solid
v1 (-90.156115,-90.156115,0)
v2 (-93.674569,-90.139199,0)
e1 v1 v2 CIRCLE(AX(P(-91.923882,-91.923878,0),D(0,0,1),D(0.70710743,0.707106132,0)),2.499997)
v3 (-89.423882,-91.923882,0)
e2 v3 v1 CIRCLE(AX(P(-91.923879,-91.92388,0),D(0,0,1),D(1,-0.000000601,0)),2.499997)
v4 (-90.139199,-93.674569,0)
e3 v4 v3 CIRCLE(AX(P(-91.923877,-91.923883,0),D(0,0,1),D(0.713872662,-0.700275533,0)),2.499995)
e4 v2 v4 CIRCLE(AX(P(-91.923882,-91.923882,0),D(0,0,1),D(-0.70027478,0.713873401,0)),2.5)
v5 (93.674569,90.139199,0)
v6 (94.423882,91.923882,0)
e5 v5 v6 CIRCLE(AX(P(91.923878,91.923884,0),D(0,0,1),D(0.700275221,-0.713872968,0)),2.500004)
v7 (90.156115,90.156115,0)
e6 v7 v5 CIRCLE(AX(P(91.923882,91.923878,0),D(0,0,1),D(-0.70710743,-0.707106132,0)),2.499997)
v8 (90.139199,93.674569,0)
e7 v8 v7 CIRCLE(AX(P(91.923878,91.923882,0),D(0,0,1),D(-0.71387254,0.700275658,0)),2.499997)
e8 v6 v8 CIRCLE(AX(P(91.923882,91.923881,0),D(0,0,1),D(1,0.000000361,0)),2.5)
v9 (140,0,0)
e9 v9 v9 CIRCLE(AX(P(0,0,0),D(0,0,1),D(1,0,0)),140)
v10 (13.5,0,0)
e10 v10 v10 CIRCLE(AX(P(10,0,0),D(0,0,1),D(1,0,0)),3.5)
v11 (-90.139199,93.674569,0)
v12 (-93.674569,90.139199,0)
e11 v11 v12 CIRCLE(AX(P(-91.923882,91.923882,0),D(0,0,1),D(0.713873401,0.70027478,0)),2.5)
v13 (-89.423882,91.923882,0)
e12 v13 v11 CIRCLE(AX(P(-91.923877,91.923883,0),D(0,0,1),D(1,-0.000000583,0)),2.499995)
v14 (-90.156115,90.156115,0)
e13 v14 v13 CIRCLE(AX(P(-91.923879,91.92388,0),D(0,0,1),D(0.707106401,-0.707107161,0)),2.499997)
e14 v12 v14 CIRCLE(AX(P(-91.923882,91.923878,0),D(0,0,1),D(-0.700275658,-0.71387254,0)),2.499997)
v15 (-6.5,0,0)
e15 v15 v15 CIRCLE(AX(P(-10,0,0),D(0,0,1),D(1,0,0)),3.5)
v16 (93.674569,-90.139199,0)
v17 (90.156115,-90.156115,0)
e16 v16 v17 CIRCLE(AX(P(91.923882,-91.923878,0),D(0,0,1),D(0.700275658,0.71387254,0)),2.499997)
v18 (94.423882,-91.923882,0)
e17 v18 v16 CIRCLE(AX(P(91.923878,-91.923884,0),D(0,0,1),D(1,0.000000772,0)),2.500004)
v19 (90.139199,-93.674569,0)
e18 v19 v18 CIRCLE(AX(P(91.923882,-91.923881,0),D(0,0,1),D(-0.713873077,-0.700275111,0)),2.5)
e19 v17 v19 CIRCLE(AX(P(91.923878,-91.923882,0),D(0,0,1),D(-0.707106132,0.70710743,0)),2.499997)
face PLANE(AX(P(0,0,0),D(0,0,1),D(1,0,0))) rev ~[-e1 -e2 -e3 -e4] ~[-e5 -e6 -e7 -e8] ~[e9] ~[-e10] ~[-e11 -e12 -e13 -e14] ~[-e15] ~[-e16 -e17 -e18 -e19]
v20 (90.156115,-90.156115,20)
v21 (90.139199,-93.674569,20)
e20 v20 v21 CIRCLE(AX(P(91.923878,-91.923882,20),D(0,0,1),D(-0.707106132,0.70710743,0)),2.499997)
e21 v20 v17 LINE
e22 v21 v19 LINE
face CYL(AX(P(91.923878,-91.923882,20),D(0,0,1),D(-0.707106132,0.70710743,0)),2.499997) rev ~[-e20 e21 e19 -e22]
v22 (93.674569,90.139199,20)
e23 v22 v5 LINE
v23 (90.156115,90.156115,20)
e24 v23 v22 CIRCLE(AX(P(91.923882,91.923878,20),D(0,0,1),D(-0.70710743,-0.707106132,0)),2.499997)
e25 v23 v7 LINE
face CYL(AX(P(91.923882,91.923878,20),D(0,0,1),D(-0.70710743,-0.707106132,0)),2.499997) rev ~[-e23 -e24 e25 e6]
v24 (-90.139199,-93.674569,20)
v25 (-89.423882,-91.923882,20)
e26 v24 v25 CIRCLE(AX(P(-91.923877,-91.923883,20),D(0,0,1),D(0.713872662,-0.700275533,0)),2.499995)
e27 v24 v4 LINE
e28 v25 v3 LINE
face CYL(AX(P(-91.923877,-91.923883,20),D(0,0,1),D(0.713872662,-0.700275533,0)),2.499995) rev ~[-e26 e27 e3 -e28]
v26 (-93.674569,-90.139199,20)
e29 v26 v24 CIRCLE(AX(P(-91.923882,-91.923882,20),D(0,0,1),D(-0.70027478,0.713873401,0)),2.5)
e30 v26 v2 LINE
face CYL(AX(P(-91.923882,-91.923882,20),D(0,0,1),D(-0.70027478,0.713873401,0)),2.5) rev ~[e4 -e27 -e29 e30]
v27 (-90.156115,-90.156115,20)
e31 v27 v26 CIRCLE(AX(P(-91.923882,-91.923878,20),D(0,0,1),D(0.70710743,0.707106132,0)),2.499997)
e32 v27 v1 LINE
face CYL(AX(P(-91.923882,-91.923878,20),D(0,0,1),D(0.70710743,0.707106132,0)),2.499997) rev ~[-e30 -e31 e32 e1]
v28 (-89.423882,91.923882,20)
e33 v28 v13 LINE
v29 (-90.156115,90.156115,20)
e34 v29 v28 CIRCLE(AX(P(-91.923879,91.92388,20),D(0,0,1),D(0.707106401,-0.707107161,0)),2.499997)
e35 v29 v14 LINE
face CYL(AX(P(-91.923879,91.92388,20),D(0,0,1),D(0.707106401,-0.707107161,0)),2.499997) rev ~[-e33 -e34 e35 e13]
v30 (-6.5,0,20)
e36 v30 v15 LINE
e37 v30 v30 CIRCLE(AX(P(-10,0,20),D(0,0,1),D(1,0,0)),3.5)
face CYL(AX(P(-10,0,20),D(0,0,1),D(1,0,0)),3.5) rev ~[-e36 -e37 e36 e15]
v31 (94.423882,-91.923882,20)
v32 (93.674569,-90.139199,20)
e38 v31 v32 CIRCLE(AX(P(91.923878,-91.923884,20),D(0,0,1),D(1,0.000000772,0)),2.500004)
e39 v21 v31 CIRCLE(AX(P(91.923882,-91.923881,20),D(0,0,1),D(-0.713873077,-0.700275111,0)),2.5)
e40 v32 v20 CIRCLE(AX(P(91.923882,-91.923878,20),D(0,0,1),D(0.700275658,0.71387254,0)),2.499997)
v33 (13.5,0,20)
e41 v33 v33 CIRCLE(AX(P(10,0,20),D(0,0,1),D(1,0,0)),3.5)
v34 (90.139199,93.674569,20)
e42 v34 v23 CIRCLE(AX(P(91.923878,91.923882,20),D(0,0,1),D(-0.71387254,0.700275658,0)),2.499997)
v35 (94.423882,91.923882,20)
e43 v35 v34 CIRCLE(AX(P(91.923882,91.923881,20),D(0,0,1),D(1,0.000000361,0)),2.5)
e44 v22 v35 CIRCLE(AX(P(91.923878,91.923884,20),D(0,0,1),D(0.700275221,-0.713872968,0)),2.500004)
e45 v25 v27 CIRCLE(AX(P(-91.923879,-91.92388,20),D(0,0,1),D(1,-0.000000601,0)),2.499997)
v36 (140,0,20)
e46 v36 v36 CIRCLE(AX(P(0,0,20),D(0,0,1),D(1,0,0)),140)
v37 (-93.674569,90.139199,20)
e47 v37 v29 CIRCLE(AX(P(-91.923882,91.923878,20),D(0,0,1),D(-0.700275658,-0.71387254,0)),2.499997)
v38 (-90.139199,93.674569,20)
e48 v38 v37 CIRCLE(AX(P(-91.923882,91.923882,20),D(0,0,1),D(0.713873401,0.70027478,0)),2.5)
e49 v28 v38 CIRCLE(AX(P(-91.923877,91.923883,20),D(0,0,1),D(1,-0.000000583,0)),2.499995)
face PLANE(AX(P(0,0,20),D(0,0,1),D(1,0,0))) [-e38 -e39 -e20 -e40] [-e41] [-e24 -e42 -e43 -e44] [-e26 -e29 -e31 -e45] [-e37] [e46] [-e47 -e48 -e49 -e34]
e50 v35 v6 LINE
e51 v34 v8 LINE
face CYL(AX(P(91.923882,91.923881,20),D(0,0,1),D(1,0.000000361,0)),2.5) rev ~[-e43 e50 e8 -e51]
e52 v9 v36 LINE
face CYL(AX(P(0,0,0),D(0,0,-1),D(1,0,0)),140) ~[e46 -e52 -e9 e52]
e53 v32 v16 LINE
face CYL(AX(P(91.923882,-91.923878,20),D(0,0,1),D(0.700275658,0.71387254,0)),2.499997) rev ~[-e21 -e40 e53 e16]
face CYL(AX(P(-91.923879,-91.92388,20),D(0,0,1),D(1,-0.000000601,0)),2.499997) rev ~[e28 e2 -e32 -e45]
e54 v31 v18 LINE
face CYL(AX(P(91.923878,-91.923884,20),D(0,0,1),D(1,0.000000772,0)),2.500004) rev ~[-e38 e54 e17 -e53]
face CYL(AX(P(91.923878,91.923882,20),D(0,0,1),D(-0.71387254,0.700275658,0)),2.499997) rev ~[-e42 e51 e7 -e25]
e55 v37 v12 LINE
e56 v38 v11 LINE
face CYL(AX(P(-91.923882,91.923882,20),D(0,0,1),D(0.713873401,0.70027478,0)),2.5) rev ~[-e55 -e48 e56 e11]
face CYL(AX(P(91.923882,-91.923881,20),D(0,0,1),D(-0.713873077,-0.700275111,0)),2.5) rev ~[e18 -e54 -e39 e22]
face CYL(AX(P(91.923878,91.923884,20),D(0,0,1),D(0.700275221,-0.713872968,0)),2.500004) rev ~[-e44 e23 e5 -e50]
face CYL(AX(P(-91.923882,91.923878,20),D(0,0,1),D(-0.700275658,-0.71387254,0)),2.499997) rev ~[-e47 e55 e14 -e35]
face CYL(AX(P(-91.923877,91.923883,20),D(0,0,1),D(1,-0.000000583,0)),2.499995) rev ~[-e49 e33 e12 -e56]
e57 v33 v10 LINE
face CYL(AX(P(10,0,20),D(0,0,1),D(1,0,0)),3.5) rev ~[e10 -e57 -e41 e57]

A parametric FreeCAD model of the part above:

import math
import FreeCAD as App
import Part
import Sketcher
Q = App.Units.Quantity

doc = App.newDocument("Part")
body = doc.addObject("PartDesign::Body", "Body")

# Sketch on XY plane
sketch1 = doc.addObject("Sketcher::SketchObject", "Sketch")
body.addObject(sketch1)
sketch1.AttachmentSupport = (doc.XY_Plane, [""])
sketch1.MapMode = "FlatFace"
sketch1.addGeometry(Part.Circle(App.Vector(0, 0, 0), App.Vector(0, 0, 1), 140), False)
sketch1.addConstraint([
    Sketcher.Constraint("Coincident", 0, 3, -1, 1),
    Sketcher.Constraint("Diameter", 0, Q("280 mm")),
])
pad1 = doc.addObject("PartDesign::Pad", "Pad")
body.addObject(pad1)
pad1.Profile = sketch1
pad1.Length = 20

# Sketch on XY plane
sketch2 = doc.addObject("Sketcher::SketchObject", "Sketch001")
body.addObject(sketch2)
sketch2.AttachmentSupport = (doc.XY_Plane, [""])
sketch2.MapMode = "FlatFace"
sketch2.AttachmentOffset = App.Placement(App.Vector(0, 0, 20), App.Rotation())
sketch2.addGeometry([
    Part.Circle(App.Vector(-10, 0, 0), App.Vector(0, 0, 1), 3.5),
    Part.Circle(App.Vector(10, 0, 0), App.Vector(0, 0, 1), 3.5),
], False)
sketch2.addConstraint([
    Sketcher.Constraint("Equal", 0, 1),
    Sketcher.Constraint("Symmetric", 0, 3, 1, 3, -1, 1),
    Sketcher.Constraint("PointOnObject", 0, 3, -1),
    Sketcher.Constraint("Diameter", 0, Q("7 mm")),
    Sketcher.Constraint("DistanceX", 0, 3, -1, 1, Q("10 mm")),
])
pocket1 = doc.addObject("PartDesign::Pocket", "Pocket")
body.addObject(pocket1)
pocket1.Profile = sketch2
pocket1.Type = "ThroughAll"

# Sketch on XY plane
sketch3 = doc.addObject("Sketcher::SketchObject", "Sketch002")
body.addObject(sketch3)
sketch3.AttachmentSupport = (doc.XY_Plane, [""])
sketch3.MapMode = "FlatFace"
sketch3.AttachmentOffset = App.Placement(App.Vector(0, 0, 20), App.Rotation())
sketch3.addGeometry([
    Part.ArcOfCircle(Part.Circle(App.Vector(-91.9, 91.9, 0), App.Vector(0, 0, 1), 2.5), math.radians(44), math.radians(226)),  # 0
    Part.ArcOfCircle(Part.Circle(App.Vector(-91.9, 91.9, 0), App.Vector(0, 0, 1), 2.5), math.radians(-134), math.radians(-45)),  # 1
    Part.ArcOfCircle(Part.Circle(App.Vector(-91.9, 91.9, 0), App.Vector(0, 0, 1), 2.5), math.radians(-45), math.radians(0)),  # 2
    Part.ArcOfCircle(Part.Circle(App.Vector(-91.9, 91.9, 0), App.Vector(0, 0, 1), 2.5), math.radians(0), math.radians(44)),  # 3
    Part.ArcOfCircle(Part.Circle(App.Vector(91.9, 91.9, 0), App.Vector(0, 0, 1), 2.5), math.radians(-46), math.radians(0)),  # 4
    Part.ArcOfCircle(Part.Circle(App.Vector(91.9, 91.9, 0), App.Vector(0, 0, 1), 2.5), math.radians(0), math.radians(136)),  # 5
    Part.ArcOfCircle(Part.Circle(App.Vector(91.9, 91.9, 0), App.Vector(0, 0, 1), 2.5), math.radians(136), math.radians(225)),  # 6
    Part.ArcOfCircle(Part.Circle(App.Vector(91.9, 91.9, 0), App.Vector(0, 0, 1), 2.5), math.radians(-135), math.radians(-46)),  # 7
    Part.ArcOfCircle(Part.Circle(App.Vector(-91.9, -91.9, 0), App.Vector(0, 0, 1), 2.5), math.radians(134), math.radians(316)),  # 8
    Part.ArcOfCircle(Part.Circle(App.Vector(-91.9, -91.9, 0), App.Vector(0, 0, 1), 2.5), math.radians(-44), math.radians(0)),  # 9
    Part.ArcOfCircle(Part.Circle(App.Vector(-91.9, -91.9, 0), App.Vector(0, 0, 1), 2.5), math.radians(0), math.radians(45)),  # 10
    Part.ArcOfCircle(Part.Circle(App.Vector(-91.9, -91.9, 0), App.Vector(0, 0, 1), 2.5), math.radians(45), math.radians(134)),  # 11
    Part.ArcOfCircle(Part.Circle(App.Vector(91.9, -91.9, 0), App.Vector(0, 0, 1), 2.5), math.radians(0), math.radians(46)),  # 12
    Part.ArcOfCircle(Part.Circle(App.Vector(91.9, -91.9, 0), App.Vector(0, 0, 1), 2.5), math.radians(46), math.radians(135)),  # 13
    Part.ArcOfCircle(Part.Circle(App.Vector(91.9, -91.9, 0), App.Vector(0, 0, 1), 2.5), math.radians(135), math.radians(224)),  # 14
    Part.ArcOfCircle(Part.Circle(App.Vector(91.9, -91.9, 0), App.Vector(0, 0, 1), 2.5), math.radians(-136), math.radians(0)),  # 15
], False)
sketch3.addConstraint([
    Sketcher.Constraint("Tangent", 0, 2, 1, 1),
    Sketcher.Constraint("Tangent", 1, 2, 2, 1),
    Sketcher.Constraint("Tangent", 2, 2, 3, 1),
    Sketcher.Constraint("Tangent", 3, 2, 0, 1),
    Sketcher.Constraint("Tangent", 4, 2, 5, 1),
    Sketcher.Constraint("Tangent", 5, 2, 6, 1),
    Sketcher.Constraint("Tangent", 6, 2, 7, 1),
    Sketcher.Constraint("Tangent", 7, 2, 4, 1),
    Sketcher.Constraint("Tangent", 8, 2, 9, 1),
    Sketcher.Constraint("Tangent", 9, 2, 10, 1),
    Sketcher.Constraint("Tangent", 10, 2, 11, 1),
    Sketcher.Constraint("Tangent", 11, 2, 8, 1),
    Sketcher.Constraint("Tangent", 12, 2, 13, 1),
    Sketcher.Constraint("Tangent", 13, 2, 14, 1),
    Sketcher.Constraint("Tangent", 14, 2, 15, 1),
    Sketcher.Constraint("Tangent", 15, 2, 12, 1),
    Sketcher.Constraint("Equal", 1, 2),
    Sketcher.Constraint("Equal", 0, 5),
    Sketcher.Constraint("Equal", 2, 6),
    Sketcher.Constraint("Equal", 5, 8),
    Sketcher.Constraint("Equal", 3, 9),
    Sketcher.Constraint("Equal", 4, 12),
    Sketcher.Constraint("Equal", 11, 13),
    Sketcher.Constraint("Symmetric", 4, 3, 8, 3, -1, 1),
    Sketcher.Constraint("Symmetric", 0, 3, 12, 3, -1, 1),
    Sketcher.Constraint("Symmetric", 0, 3, 4, 3, -2),
    Sketcher.Constraint("Horizontal", 6, 3, 2, 2),
    Sketcher.Constraint("Horizontal", 2, 2, 4, 2),
    Sketcher.Constraint("Horizontal", 3, 2, 5, 2),
    Sketcher.Constraint("Horizontal", 1, 2, 6, 2),
    Sketcher.Constraint("Horizontal", 0, 2, 7, 2),
    Sketcher.Constraint("Horizontal", 15, 3, 9, 2),
    Sketcher.Constraint("Horizontal", 11, 2, 12, 2),
    Sketcher.Constraint("Horizontal", 10, 2, 13, 2),
    Sketcher.Constraint("Horizontal", 8, 2, 14, 2),
    Sketcher.Constraint("Horizontal", 9, 2, 15, 2),
    Sketcher.Constraint("Vertical", 3, 2, 8, 2),
    Sketcher.Constraint("Vertical", 1, 2, 10, 2),
    Sketcher.Constraint("Vertical", 0, 2, 11, 2),
    Sketcher.Constraint("Radius", 0, Q("2.5 mm")),
    Sketcher.Constraint("DistanceY", -1, 1, 0, 2, Q("90.139199 mm")),
    Sketcher.Constraint("DistanceX", 3, 2, -1, 1, Q("90.139199 mm")),
    Sketcher.Constraint("DistanceX", 1, 3, -1, 1, Q("91.923882 mm")),
    Sketcher.Constraint("DistanceY", -1, 1, 1, 3, Q("91.923878 mm")),
    Sketcher.Constraint("DistanceY", 1, 2, 3, 3, Q("1.767768 mm")),
])
pocket2 = doc.addObject("PartDesign::Pocket", "Pocket001")
body.addObject(pocket2)
pocket2.Profile = sketch3
pocket2.Length = 25

doc.recompute()
